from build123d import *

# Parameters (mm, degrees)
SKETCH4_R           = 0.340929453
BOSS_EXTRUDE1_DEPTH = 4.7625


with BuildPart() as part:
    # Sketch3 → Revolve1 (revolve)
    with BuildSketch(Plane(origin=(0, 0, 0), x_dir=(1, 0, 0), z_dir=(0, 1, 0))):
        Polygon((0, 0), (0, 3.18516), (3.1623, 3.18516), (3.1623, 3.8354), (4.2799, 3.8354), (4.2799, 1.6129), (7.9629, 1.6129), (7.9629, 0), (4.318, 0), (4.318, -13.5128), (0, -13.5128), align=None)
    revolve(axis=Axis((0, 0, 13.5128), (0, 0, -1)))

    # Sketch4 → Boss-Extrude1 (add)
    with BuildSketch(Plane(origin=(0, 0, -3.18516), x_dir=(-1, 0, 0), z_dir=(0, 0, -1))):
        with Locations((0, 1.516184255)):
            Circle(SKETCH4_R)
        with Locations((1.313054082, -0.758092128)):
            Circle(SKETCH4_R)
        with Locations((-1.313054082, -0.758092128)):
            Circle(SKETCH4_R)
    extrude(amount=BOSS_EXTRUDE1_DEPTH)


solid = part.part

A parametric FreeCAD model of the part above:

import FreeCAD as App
import Part
import Sketcher
Q = App.Units.Quantity

doc = App.newDocument("Part")
body = doc.addObject("PartDesign::Body", "Body")

# Sketch on XZ plane
sketch1 = body.newObject("Sketcher::SketchObject", "Sketch")
sketch1.AttachmentSupport = (doc.getObject("XZ_Plane"), [""])
sketch1.MapMode = "FlatFace"
sketch1.addGeometry([
    Part.LineSegment(App.Vector(0, -3.2, 0), App.Vector(0, 13.5, 0)),  # 0
    Part.LineSegment(App.Vector(0, 13.5, 0), App.Vector(4.3, 13.5, 0)),  # 1
    Part.LineSegment(App.Vector(4.3, 13.5, 0), App.Vector(4.3, 0, 0)),  # 2
    Part.LineSegment(App.Vector(4.3, 0, 0), App.Vector(8, 0, 0)),  # 3
    Part.LineSegment(App.Vector(8, 0, 0), App.Vector(8, -1.6, 0)),  # 4
    Part.LineSegment(App.Vector(8, -1.6, 0), App.Vector(4.3, -1.6, 0)),  # 5
    Part.LineSegment(App.Vector(4.3, -1.6, 0), App.Vector(4.3, -3.8, 0)),  # 6
    Part.LineSegment(App.Vector(4.3, -3.8, 0), App.Vector(3.2, -3.8, 0)),  # 7
    Part.LineSegment(App.Vector(3.2, -3.8, 0), App.Vector(3.2, -3.2, 0)),  # 8
    Part.LineSegment(App.Vector(3.2, -3.2, 0), App.Vector(0, -3.2, 0)),  # 9
], False)
sketch1.addConstraint([
    Sketcher.Constraint("Coincident", 0, 2, 1, 1),
    Sketcher.Constraint("Coincident", 1, 2, 2, 1),
    Sketcher.Constraint("Coincident", 2, 2, 3, 1),
    Sketcher.Constraint("Coincident", 3, 2, 4, 1),
    Sketcher.Constraint("Coincident", 4, 2, 5, 1),
    Sketcher.Constraint("Coincident", 5, 2, 6, 1),
    Sketcher.Constraint("Coincident", 6, 2, 7, 1),
    Sketcher.Constraint("Coincident", 7, 2, 8, 1),
    Sketcher.Constraint("Coincident", 8, 2, 9, 1),
    Sketcher.Constraint("Coincident", 9, 2, 0, 1),
    Sketcher.Constraint("Vertical", 0),
    Sketcher.Constraint("Horizontal", 1),
    Sketcher.Constraint("Vertical", 2),
    Sketcher.Constraint("Horizontal", 3),
    Sketcher.Constraint("Vertical", 4),
    Sketcher.Constraint("Horizontal", 5),
    Sketcher.Constraint("Vertical", 6),
    Sketcher.Constraint("Horizontal", 7),
    Sketcher.Constraint("Vertical", 8),
    Sketcher.Constraint("Horizontal", 9),
    Sketcher.Constraint("PointOnObject", 0, 2, -2),
    Sketcher.Constraint("PointOnObject", 2, 2, -1),
    Sketcher.Constraint("DistanceX", 1, 1, 1, 2, Q("0.17 in")),
    Sketcher.Constraint("DistanceX", 5, 2, 5, 1, Q("0.145 in")),
    Sketcher.Constraint("DistanceX", 7, 2, 7, 1, Q("0.044 in")),
    Sketcher.Constraint("DistanceY", 2, 2, 2, 1, Q("0.532 in")),
    Sketcher.Constraint("DistanceX", 3, 1, 3, 2, Q("0.1435 in")),
    Sketcher.Constraint("DistanceY", 0, 1, 0, 2, Q("0.6574 in")),
    Sketcher.Constraint("DistanceY", 4, 2, 4, 1, Q("0.0635 in")),
    Sketcher.Constraint("DistanceY", 6, 2, 6, 1, Q("0.0875 in")),
])
revolution = body.newObject("PartDesign::Revolution", "Revolution")
revolution.Profile = sketch1
revolution.ReferenceAxis = (sketch1, ["V_Axis"])
revolution.Angle = 360

# Sketch on XY plane
sketch2 = body.newObject("Sketcher::SketchObject", "Sketch001")
sketch2.AttachmentSupport = (doc.getObject("XY_Plane"), [""])
sketch2.MapMode = "FlatFace"
sketch2.AttachmentOffset = App.Placement(App.Vector(0, 0, -0.1254 * 25.4), App.Rotation())
sketch2.addGeometry([
    Part.Circle(App.Vector(0, 1.52, 0), App.Vector(0, 0, 1), 0.34),
    Part.Circle(App.Vector(-1.31, -0.76, 0), App.Vector(0, 0, 1), 0.34),
    Part.Circle(App.Vector(1.31, -0.76, 0), App.Vector(0, 0, 1), 0.34),
], False)
sketch2.addConstraint([
    Sketcher.Constraint("Equal", 0, 1),
    Sketcher.Constraint("Equal", 1, 2),
    Sketcher.Constraint("Symmetric", 1, 3, 2, 3, -2),
    Sketcher.Constraint("PointOnObject", 0, 3, -2),
    Sketcher.Constraint("Diameter", 0, 0.681859),
    Sketcher.Constraint("DistanceX", 1, 3, 2, 3, 2.626108),
    Sketcher.Constraint("DistanceY", -1, 1, 0, 3, 1.516184),
    Sketcher.Constraint("DistanceY", 1, 3, -1, 1, 0.758092),
])
pad1 = body.newObject("PartDesign::Pad", "Pad")
pad1.Profile = sketch2
pad1.Length = Q("0.1875 in")
pad1.Reversed = True

doc.recompute()
